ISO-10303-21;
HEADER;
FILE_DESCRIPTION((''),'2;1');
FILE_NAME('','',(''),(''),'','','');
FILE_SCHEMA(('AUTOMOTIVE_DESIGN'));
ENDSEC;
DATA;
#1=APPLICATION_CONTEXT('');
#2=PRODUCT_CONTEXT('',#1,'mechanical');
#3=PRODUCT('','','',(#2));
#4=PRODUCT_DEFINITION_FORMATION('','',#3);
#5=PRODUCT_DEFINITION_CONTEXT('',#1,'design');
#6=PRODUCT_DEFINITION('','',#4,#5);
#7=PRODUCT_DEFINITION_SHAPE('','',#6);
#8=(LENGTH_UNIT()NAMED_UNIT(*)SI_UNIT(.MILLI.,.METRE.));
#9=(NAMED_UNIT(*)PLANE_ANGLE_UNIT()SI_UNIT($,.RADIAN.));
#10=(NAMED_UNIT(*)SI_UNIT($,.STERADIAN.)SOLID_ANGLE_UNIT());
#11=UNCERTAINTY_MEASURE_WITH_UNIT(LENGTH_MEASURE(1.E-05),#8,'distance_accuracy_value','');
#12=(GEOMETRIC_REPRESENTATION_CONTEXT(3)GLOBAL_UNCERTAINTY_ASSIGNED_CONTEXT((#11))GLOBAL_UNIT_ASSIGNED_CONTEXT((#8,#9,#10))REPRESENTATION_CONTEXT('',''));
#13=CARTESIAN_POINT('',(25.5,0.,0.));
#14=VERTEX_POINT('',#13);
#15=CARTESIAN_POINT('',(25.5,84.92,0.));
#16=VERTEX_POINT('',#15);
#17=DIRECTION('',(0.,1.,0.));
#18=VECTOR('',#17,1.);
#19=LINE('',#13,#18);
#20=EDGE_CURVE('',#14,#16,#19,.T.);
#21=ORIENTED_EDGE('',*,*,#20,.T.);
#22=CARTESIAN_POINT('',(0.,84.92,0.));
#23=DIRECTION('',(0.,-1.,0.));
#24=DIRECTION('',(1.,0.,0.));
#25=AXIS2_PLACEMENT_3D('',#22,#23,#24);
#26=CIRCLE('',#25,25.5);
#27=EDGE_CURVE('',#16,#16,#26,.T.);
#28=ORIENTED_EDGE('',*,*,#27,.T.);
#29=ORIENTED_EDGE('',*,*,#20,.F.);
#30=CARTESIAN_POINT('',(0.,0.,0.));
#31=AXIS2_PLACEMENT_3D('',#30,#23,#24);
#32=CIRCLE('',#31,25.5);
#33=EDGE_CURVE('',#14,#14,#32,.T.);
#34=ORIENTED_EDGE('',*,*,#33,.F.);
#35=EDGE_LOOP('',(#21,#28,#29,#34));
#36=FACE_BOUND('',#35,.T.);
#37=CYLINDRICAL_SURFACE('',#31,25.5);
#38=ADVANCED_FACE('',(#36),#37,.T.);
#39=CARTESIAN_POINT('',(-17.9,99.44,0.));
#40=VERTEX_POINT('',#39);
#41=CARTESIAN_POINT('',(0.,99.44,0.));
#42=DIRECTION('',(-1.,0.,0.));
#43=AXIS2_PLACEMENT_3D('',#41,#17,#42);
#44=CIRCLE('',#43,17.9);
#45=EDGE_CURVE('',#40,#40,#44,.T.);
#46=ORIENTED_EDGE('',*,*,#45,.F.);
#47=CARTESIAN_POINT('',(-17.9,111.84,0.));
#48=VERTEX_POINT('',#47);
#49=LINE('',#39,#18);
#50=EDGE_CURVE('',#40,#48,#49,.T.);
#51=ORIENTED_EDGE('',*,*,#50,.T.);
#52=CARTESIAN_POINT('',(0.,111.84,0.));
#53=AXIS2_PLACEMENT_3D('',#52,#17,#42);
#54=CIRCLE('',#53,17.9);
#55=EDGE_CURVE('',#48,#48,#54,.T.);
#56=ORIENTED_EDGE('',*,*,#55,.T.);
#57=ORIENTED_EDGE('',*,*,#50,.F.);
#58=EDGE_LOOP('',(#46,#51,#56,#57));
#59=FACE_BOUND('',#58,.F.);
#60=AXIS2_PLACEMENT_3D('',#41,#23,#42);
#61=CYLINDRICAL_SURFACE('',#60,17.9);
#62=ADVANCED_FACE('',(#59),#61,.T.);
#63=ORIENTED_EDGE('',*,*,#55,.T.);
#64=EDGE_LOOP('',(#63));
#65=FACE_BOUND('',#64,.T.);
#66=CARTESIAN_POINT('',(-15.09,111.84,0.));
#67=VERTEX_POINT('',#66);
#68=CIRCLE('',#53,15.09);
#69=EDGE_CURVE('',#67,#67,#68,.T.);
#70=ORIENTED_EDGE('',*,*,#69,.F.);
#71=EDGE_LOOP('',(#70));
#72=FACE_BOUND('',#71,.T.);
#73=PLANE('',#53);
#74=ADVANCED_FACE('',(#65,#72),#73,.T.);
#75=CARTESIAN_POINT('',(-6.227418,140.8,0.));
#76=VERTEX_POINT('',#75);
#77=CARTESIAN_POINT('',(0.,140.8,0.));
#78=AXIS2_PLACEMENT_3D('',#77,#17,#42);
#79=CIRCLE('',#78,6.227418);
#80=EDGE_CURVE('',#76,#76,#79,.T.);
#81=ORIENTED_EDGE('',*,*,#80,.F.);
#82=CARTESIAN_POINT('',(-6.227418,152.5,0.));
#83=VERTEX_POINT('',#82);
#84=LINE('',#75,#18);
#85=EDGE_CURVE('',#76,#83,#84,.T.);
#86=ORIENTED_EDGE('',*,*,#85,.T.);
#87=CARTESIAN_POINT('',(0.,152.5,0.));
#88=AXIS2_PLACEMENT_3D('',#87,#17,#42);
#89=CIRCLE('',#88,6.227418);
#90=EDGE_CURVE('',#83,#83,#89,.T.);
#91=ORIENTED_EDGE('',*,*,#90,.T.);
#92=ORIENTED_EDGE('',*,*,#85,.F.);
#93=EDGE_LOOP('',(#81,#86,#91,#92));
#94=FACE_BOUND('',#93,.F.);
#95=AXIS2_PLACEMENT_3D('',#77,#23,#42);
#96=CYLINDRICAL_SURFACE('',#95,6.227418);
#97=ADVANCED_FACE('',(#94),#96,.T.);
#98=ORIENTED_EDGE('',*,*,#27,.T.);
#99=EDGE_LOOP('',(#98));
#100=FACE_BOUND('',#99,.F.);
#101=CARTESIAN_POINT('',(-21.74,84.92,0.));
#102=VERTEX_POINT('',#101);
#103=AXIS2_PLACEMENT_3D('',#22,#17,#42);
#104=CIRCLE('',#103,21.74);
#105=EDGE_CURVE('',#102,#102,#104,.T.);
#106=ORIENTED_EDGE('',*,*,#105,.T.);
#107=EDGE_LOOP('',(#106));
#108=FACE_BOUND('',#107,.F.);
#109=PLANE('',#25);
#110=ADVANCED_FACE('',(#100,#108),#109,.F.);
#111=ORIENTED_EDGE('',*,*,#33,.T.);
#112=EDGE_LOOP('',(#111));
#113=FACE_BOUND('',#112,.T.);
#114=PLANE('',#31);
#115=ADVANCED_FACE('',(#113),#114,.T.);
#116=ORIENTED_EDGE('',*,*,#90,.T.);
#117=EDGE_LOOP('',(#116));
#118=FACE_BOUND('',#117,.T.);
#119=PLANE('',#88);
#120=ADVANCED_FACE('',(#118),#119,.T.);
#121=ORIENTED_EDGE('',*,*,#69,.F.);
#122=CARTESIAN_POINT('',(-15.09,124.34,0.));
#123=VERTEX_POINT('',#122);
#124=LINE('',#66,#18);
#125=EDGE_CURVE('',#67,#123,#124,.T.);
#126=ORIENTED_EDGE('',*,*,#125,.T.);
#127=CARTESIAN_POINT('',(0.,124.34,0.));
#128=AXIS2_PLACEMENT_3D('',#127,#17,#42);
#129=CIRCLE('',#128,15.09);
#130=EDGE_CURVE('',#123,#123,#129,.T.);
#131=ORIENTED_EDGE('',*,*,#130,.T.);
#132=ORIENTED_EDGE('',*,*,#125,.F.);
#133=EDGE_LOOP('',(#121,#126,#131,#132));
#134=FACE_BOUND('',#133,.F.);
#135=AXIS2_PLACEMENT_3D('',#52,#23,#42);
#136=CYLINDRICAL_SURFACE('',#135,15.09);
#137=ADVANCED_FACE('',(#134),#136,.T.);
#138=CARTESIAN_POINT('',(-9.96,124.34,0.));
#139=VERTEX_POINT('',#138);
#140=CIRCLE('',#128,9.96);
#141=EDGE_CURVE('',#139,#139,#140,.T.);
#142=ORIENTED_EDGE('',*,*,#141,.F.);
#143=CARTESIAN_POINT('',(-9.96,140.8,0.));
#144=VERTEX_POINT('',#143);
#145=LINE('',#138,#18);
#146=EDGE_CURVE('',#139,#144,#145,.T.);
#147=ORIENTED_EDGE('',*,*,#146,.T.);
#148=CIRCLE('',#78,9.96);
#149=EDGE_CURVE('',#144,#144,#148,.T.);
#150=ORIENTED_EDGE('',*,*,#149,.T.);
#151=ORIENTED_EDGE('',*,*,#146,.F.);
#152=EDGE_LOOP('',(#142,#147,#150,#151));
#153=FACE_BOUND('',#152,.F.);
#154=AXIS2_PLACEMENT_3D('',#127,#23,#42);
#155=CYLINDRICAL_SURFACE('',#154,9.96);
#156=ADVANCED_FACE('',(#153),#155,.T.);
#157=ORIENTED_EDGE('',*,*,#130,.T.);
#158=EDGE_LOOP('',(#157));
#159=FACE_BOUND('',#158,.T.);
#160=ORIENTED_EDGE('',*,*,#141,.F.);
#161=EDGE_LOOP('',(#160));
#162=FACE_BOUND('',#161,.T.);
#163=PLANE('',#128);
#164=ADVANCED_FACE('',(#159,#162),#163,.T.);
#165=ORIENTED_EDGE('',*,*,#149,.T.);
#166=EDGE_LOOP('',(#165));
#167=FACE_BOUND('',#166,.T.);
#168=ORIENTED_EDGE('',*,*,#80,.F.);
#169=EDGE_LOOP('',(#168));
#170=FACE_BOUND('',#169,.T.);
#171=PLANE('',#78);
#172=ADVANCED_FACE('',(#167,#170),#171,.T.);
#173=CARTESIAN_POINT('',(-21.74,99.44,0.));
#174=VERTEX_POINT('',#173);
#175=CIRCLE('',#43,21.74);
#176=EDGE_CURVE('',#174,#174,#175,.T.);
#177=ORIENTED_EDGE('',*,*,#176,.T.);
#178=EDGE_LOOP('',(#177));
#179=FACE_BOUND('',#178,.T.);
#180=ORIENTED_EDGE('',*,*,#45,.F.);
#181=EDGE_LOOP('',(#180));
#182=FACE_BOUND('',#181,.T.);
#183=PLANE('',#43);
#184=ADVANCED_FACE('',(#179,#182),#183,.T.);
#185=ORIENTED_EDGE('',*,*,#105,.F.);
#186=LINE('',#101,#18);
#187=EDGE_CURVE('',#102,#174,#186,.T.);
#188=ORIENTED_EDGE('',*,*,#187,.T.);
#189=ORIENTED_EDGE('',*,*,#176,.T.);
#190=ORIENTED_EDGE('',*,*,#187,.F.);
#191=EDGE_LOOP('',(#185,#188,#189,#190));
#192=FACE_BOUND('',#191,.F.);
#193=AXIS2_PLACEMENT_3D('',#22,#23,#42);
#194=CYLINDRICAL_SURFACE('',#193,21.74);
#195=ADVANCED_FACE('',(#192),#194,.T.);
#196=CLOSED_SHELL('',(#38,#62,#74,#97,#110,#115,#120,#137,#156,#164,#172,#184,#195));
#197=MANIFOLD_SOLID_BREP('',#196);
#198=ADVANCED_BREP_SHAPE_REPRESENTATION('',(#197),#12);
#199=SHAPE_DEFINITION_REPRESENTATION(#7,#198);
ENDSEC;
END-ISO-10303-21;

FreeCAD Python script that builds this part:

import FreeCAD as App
import Part
import Sketcher

V = App.Vector

doc = App.newDocument("Part")
params = doc.addObject("Spreadsheet::Sheet", "Params")
for row, (alias, value) in enumerate([
    ("sketch1_diameter", "51 mm"),
    ("pad1_length", "84.92 mm"),
    ("sketch2_diameter", "43.48 mm"),
    ("pad2_length", "14.52 mm"),
    ("sketch3_diameter", "35.8 mm"),
    ("pad3_length", "12.4 mm"),
    ("sketch4_diameter", "30.18 mm"),
    ("pad4_length", "12.5 mm"),
    ("sketch5_diameter", "19.92 mm"),
    ("pad5_length", "16.46 mm"),
    ("pad6_length", "11.7 mm"),
], start=1):
    params.set(f"A{row}", alias)
    params.set(f"B{row}", "=" + value)
    params.setAlias(f"B{row}", alias)

body = doc.addObject("PartDesign::Body", "Body")

sketch1 = body.newObject("Sketcher::SketchObject", "Sketch")
sketch1.AttachmentSupport = (doc.getObject("XZ_Plane"), [""])
sketch1.MapMode = "FlatFace"
sketch1.addGeometry(Part.Circle(V(0, 0, 0), V(0, 0, 1), 26), False)
sketch1.addConstraint([
    Sketcher.Constraint("Coincident", 0, 3, -1, 1),
    Sketcher.Constraint("Diameter", 0, 51.0),
])
sketch1.setExpression("Constraints[1]", "Params.sketch1_diameter")
pad1 = body.newObject("PartDesign::Pad", "Pad")
pad1.Profile = sketch1
pad1.setExpression("Length", "Params.pad1_length")
pad1.Reversed = True

sketch2 = body.newObject("Sketcher::SketchObject", "Sketch001")
sketch2.AttachmentSupport = (doc.getObject("XZ_Plane"), [""])
sketch2.MapMode = "FlatFace"
sketch2.AttachmentOffset = App.Placement(V(0, 0, -84.92), App.Rotation())
sketch2.addGeometry(Part.Circle(V(0, 0, 0), V(0, 0, 1), 22), False)
sketch2.addConstraint([
    Sketcher.Constraint("Coincident", 0, 3, -1, 1),
    Sketcher.Constraint("Diameter", 0, 43.48),
])
sketch2.setExpression("Constraints[1]", "Params.sketch2_diameter")
pad2 = body.newObject("PartDesign::Pad", "Pad001")
pad2.Profile = sketch2
pad2.setExpression("Length", "Params.pad2_length")
pad2.Reversed = True

sketch3 = body.newObject("Sketcher::SketchObject", "Sketch002")
sketch3.AttachmentSupport = (doc.getObject("XZ_Plane"), [""])
sketch3.MapMode = "FlatFace"
sketch3.AttachmentOffset = App.Placement(V(0, 0, -99.44), App.Rotation())
sketch3.addGeometry(Part.Circle(V(0, 0, 0), V(0, 0, 1), 18), False)
sketch3.addConstraint([
    Sketcher.Constraint("Coincident", 0, 3, -1, 1),
    Sketcher.Constraint("Diameter", 0, 35.8),
])
sketch3.setExpression("Constraints[1]", "Params.sketch3_diameter")
pad3 = body.newObject("PartDesign::Pad", "Pad002")
pad3.Profile = sketch3
pad3.setExpression("Length", "Params.pad3_length")
pad3.Reversed = True

sketch4 = body.newObject("Sketcher::SketchObject", "Sketch003")
sketch4.AttachmentSupport = (doc.getObject("XZ_Plane"), [""])
sketch4.MapMode = "FlatFace"
sketch4.AttachmentOffset = App.Placement(V(0, 0, -111.84), App.Rotation())
sketch4.addGeometry(Part.Circle(V(0, 0, 0), V(0, 0, 1), 15), False)
sketch4.addConstraint([
    Sketcher.Constraint("Coincident", 0, 3, -1, 1),
    Sketcher.Constraint("Diameter", 0, 30.18),
])
sketch4.setExpression("Constraints[1]", "Params.sketch4_diameter")
pad4 = body.newObject("PartDesign::Pad", "Pad003")
pad4.Profile = sketch4
pad4.setExpression("Length", "Params.pad4_length")
pad4.Reversed = True

sketch5 = body.newObject("Sketcher::SketchObject", "Sketch004")
sketch5.AttachmentSupport = (doc.getObject("XZ_Plane"), [""])
sketch5.MapMode = "FlatFace"
sketch5.AttachmentOffset = App.Placement(V(0, 0, -124.34), App.Rotation())
sketch5.addGeometry(Part.Circle(V(0, 0, 0), V(0, 0, 1), 10), False)
sketch5.addConstraint([
    Sketcher.Constraint("Coincident", 0, 3, -1, 1),
    Sketcher.Constraint("Diameter", 0, 19.92),
])
sketch5.setExpression("Constraints[1]", "Params.sketch5_diameter")
pad5 = body.newObject("PartDesign::Pad", "Pad004")
pad5.Profile = sketch5
pad5.setExpression("Length", "Params.pad5_length")
pad5.Reversed = True

sketch6 = body.newObject("Sketcher::SketchObject", "Sketch005")
sketch6.AttachmentSupport = (doc.getObject("XZ_Plane"), [""])
sketch6.MapMode = "FlatFace"
sketch6.AttachmentOffset = App.Placement(V(0, 0, -140.8), App.Rotation())
sketch6.addGeometry(Part.Circle(V(0, 0, 0), V(0, 0, 1), 6), False)
sketch6.addConstraint([
    Sketcher.Constraint("Coincident", 0, 3, -1, 1),
    Sketcher.Constraint("Diameter", 0, 12.454836),
])
pad6 = body.newObject("PartDesign::Pad", "Pad005")
pad6.Profile = sketch6
pad6.setExpression("Length", "Params.pad6_length")
pad6.Reversed = True

doc.recompute()
